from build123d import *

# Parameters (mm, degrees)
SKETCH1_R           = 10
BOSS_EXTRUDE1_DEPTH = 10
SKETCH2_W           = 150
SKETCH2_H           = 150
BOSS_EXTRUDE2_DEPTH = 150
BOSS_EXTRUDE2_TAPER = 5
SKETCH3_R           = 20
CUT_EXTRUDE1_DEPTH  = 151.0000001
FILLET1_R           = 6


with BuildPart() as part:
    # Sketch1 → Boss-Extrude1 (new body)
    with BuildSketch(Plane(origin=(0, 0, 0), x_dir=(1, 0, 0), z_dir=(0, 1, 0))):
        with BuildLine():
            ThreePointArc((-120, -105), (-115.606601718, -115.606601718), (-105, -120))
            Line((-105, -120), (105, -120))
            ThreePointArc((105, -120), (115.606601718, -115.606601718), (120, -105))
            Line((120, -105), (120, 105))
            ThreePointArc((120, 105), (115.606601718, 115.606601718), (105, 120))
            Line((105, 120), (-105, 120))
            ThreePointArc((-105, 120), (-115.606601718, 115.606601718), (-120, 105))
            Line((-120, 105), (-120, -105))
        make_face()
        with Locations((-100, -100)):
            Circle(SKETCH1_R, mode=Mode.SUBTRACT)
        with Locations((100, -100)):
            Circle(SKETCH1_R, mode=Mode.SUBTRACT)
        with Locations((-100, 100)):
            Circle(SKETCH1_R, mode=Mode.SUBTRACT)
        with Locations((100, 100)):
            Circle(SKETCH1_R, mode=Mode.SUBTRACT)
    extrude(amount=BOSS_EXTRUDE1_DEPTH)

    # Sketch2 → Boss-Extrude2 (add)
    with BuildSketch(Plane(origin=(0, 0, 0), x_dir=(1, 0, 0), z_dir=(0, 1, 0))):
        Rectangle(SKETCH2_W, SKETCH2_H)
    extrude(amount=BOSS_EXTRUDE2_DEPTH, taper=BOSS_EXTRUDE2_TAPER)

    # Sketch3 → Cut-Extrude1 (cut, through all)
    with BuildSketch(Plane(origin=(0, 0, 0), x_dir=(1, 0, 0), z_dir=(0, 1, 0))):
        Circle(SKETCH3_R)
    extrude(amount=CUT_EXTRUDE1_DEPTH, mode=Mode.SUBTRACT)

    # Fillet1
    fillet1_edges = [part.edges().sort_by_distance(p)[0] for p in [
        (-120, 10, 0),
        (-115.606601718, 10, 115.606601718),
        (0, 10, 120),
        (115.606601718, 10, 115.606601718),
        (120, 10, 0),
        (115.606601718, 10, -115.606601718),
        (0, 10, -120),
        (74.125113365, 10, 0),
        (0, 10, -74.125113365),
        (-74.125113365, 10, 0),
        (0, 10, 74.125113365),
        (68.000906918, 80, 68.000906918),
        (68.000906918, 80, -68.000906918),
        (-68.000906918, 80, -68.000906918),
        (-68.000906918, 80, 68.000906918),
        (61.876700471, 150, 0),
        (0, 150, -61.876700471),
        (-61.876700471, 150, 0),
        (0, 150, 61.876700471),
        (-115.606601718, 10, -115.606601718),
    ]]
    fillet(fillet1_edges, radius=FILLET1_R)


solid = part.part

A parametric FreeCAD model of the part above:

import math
import FreeCAD as App
import Part
import Sketcher
Q = App.Units.Quantity


def edges_at(feature, points):
    """Names of the edges that pass closest to the given points."""
    edges = feature.Shape.Edges
    near = lambda p: min(range(len(edges)), key=lambda i: edges[i].distToShape(Part.Vertex(*p))[0])
    return sorted({f"Edge{near(p) + 1}" for p in points})

doc = App.newDocument("Part")
body = doc.addObject("PartDesign::Body", "Body")

sketch1 = body.newObject("Sketcher::SketchObject", "Sketch")
sketch1.AttachmentSupport = (doc.getObject("XZ_Plane"), [""])
sketch1.MapMode = "FlatFace"
sketch1.addGeometry(Part.ArcOfCircle(Part.Circle(App.Vector(-105, 105, 0), App.Vector(0, 0, 1), 15), math.radians(90), math.radians(180)), False)
sketch1.addGeometry(Part.LineSegment(App.Vector(-105, 120, 0), App.Vector(105, 120, 0)), False)
sketch1.addGeometry(Part.ArcOfCircle(Part.Circle(App.Vector(105, 105, 0), App.Vector(0, 0, 1), 15), math.radians(0), math.radians(90)), False)
sketch1.addGeometry(Part.LineSegment(App.Vector(120, 105, 0), App.Vector(120, -105, 0)), False)
sketch1.addGeometry(Part.ArcOfCircle(Part.Circle(App.Vector(105, -105, 0), App.Vector(0, 0, 1), 15), math.radians(-90), math.radians(0)), False)
sketch1.addGeometry(Part.LineSegment(App.Vector(105, -120, 0), App.Vector(-105, -120, 0)), False)
sketch1.addGeometry(Part.ArcOfCircle(Part.Circle(App.Vector(-105, -105, 0), App.Vector(0, 0, 1), 15), math.radians(180), math.radians(270)), False)
sketch1.addGeometry(Part.LineSegment(App.Vector(-120, -105, 0), App.Vector(-120, 105, 0)), False)
sketch1.addGeometry(Part.Circle(App.Vector(-100, 100, 0), App.Vector(0, 0, 1), 10), False)
sketch1.addGeometry(Part.Circle(App.Vector(100, 100, 0), App.Vector(0, 0, 1), 10), False)
sketch1.addGeometry(Part.Circle(App.Vector(-100, -100, 0), App.Vector(0, 0, 1), 10), False)
sketch1.addGeometry(Part.Circle(App.Vector(100, -100, 0), App.Vector(0, 0, 1), 10), False)
sketch1.addConstraint(Sketcher.Constraint("Tangent", 0, 1, 1, 1))
sketch1.addConstraint(Sketcher.Constraint("Tangent", 1, 2, 2, 2))
sketch1.addConstraint(Sketcher.Constraint("Tangent", 2, 1, 3, 1))
sketch1.addConstraint(Sketcher.Constraint("Tangent", 3, 2, 4, 2))
sketch1.addConstraint(Sketcher.Constraint("Tangent", 4, 1, 5, 1))
sketch1.addConstraint(Sketcher.Constraint("Tangent", 5, 2, 6, 2))
sketch1.addConstraint(Sketcher.Constraint("Tangent", 6, 1, 7, 1))
sketch1.addConstraint(Sketcher.Constraint("Tangent", 7, 2, 0, 2))
sketch1.addConstraint(Sketcher.Constraint("Horizontal", 1))
sketch1.addConstraint(Sketcher.Constraint("Vertical", 3))
sketch1.addConstraint(Sketcher.Constraint("Horizontal", 5))
sketch1.addConstraint(Sketcher.Constraint("Vertical", 7))
sketch1.addConstraint(Sketcher.Constraint("Equal", 0, 2))
sketch1.addConstraint(Sketcher.Constraint("Equal", 2, 4))
sketch1.addConstraint(Sketcher.Constraint("Equal", 4, 6))
sketch1.addConstraint(Sketcher.Constraint("Equal", 8, 9))
sketch1.addConstraint(Sketcher.Constraint("Equal", 9, 10))
sketch1.addConstraint(Sketcher.Constraint("Equal", 10, 11))
sketch1.addConstraint(Sketcher.Constraint("Symmetric", 0, 3, 4, 3, -1, 1))
sketch1.addConstraint(Sketcher.Constraint("Symmetric", 9, 3, 10, 3, -1, 1))
sketch1.addConstraint(Sketcher.Constraint("Symmetric", 8, 3, 11, 3, -1, 1))
sketch1.addConstraint(Sketcher.Constraint("Symmetric", 8, 3, 9, 3, -2))
sketch1.addConstraint(Sketcher.Constraint("Equal", 5, 3))
sketch1.addConstraint(Sketcher.Constraint("Diameter", 8, Q("20 mm")))
sketch1.addConstraint(Sketcher.Constraint("Radius", 0, Q("15 mm")))
sketch1.addConstraint(Sketcher.Constraint("DistanceX", 1, 1, 1, 2, Q("210 mm")))
sketch1.addConstraint(Sketcher.Constraint("DistanceX", 8, 3, -1, 1, Q("100 mm")))
sketch1.addConstraint(Sketcher.Constraint("DistanceY", -1, 1, 8, 3, Q("100 mm")))
pad1 = body.newObject("PartDesign::Pad", "Pad")
pad1.Profile = sketch1
pad1.Length = 10
pad1.Reversed = True

sketch2 = body.newObject("Sketcher::SketchObject", "Sketch001")
sketch2.AttachmentSupport = (doc.getObject("XZ_Plane"), [""])
sketch2.MapMode = "FlatFace"
sketch2.addGeometry(Part.LineSegment(App.Vector(-75, -75, 0), App.Vector(-75, 75, 0)), False)
sketch2.addGeometry(Part.LineSegment(App.Vector(-75, 75, 0), App.Vector(75, 75, 0)), False)
sketch2.addGeometry(Part.LineSegment(App.Vector(75, 75, 0), App.Vector(75, -75, 0)), False)
sketch2.addGeometry(Part.LineSegment(App.Vector(75, -75, 0), App.Vector(-75, -75, 0)), False)
sketch2.addConstraint(Sketcher.Constraint("Coincident", 0, 2, 1, 1))
sketch2.addConstraint(Sketcher.Constraint("Coincident", 1, 2, 2, 1))
sketch2.addConstraint(Sketcher.Constraint("Coincident", 2, 2, 3, 1))
sketch2.addConstraint(Sketcher.Constraint("Coincident", 3, 2, 0, 1))
sketch2.addConstraint(Sketcher.Constraint("Vertical", 0))
sketch2.addConstraint(Sketcher.Constraint("Horizontal", 1))
sketch2.addConstraint(Sketcher.Constraint("Vertical", 2))
sketch2.addConstraint(Sketcher.Constraint("Horizontal", 3))
sketch2.addConstraint(Sketcher.Constraint("Symmetric", 0, 2, 2, 2, -1, 1))
sketch2.addConstraint(Sketcher.Constraint("Equal", 3, 0))
sketch2.addConstraint(Sketcher.Constraint("DistanceX", 1, 1, 1, 2, Q("150 mm")))
pad2 = body.newObject("PartDesign::Pad", "Pad001")
pad2.Profile = sketch2
pad2.Length = 150
pad2.Reversed = True
pad2.TaperAngle = -5

sketch3 = body.newObject("Sketcher::SketchObject", "Sketch002")
sketch3.AttachmentSupport = (doc.getObject("XZ_Plane"), [""])
sketch3.MapMode = "FlatFace"
sketch3.addGeometry(Part.Circle(App.Vector(0, 0, 0), App.Vector(0, 0, 1), 20), False)
sketch3.addConstraint(Sketcher.Constraint("Coincident", 0, 3, -1, 1))
sketch3.addConstraint(Sketcher.Constraint("Diameter", 0, Q("40 mm")))
pocket1 = body.newObject("PartDesign::Pocket", "Pocket")
pocket1.Profile = sketch3
pocket1.Type = "ThroughAll"
doc.recompute()

fillet = body.newObject("PartDesign::Fillet", "Fillet")
fillet.Base = (pocket1, edges_at(pocket1, [
    (-120, 10, 0),
    (-115.607, 10, 115.607),
    (0, 10, 120),
    (115.607, 10, 115.607),
    (120, 10, 0),
    (115.607, 10, -115.607),
    (0, 10, -120),
    (74.125, 10, 0),
    (0, 10, -74.125),
    (-74.125, 10, 0),
    (0, 10, 74.125),
    (68.001, 80, 68.001),
    (68.001, 80, -68.001),
    (-68.001, 80, -68.001),
    (-68.001, 80, 68.001),
    (61.877, 150, 0),
    (0, 150, -61.877),
    (-61.877, 150, 0),
    (0, 150, 61.877),
    (-115.607, 10, -115.607),
]))
fillet.Radius = 6

doc.recompute()
